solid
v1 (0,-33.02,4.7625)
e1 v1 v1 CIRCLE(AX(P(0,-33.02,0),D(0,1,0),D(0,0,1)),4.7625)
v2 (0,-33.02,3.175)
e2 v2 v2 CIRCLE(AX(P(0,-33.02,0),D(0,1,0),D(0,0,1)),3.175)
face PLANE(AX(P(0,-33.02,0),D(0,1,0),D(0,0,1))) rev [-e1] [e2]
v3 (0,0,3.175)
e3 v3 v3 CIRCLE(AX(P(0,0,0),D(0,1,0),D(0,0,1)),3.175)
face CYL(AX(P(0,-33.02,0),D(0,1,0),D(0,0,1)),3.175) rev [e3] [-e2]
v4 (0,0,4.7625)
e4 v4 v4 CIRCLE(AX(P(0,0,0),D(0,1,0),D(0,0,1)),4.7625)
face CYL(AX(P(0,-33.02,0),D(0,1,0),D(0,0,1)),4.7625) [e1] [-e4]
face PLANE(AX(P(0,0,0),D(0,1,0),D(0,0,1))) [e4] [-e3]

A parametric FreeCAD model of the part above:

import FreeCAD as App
import Part
import Sketcher
from FreeCAD import Vector
Q = App.Units.Quantity

doc = App.newDocument("Part")
body = doc.addObject("PartDesign::Body", "Body")

sketch1 = doc.addObject("Sketcher::SketchObject", "Sketch")
body.addObject(sketch1)
sketch1.AttachmentSupport = (doc.XZ_Plane, [""])
sketch1.MapMode = "FlatFace"
sketch1.addGeometry(Part.Circle(Vector(0, 0, 0), Vector(0, 0, 1), 4.7625), False)
sketch1.addGeometry(Part.Circle(Vector(0, 0, 0), Vector(0, 0, 1), 3.175), False)
sketch1.addConstraint(Sketcher.Constraint("Coincident", 0, 3, -1, 1))
sketch1.addConstraint(Sketcher.Constraint("Coincident", 1, 3, -1, 1))
sketch1.addConstraint(Sketcher.Constraint("Diameter", 1, Q("0.25 in")))
sketch1.addConstraint(Sketcher.Constraint("Diameter", 0, Q("0.375 in")))
pad1 = doc.addObject("PartDesign::Pad", "Pad")
body.addObject(pad1)
pad1.Profile = sketch1
pad1.Length = Q("1.3 in")

doc.recompute()
